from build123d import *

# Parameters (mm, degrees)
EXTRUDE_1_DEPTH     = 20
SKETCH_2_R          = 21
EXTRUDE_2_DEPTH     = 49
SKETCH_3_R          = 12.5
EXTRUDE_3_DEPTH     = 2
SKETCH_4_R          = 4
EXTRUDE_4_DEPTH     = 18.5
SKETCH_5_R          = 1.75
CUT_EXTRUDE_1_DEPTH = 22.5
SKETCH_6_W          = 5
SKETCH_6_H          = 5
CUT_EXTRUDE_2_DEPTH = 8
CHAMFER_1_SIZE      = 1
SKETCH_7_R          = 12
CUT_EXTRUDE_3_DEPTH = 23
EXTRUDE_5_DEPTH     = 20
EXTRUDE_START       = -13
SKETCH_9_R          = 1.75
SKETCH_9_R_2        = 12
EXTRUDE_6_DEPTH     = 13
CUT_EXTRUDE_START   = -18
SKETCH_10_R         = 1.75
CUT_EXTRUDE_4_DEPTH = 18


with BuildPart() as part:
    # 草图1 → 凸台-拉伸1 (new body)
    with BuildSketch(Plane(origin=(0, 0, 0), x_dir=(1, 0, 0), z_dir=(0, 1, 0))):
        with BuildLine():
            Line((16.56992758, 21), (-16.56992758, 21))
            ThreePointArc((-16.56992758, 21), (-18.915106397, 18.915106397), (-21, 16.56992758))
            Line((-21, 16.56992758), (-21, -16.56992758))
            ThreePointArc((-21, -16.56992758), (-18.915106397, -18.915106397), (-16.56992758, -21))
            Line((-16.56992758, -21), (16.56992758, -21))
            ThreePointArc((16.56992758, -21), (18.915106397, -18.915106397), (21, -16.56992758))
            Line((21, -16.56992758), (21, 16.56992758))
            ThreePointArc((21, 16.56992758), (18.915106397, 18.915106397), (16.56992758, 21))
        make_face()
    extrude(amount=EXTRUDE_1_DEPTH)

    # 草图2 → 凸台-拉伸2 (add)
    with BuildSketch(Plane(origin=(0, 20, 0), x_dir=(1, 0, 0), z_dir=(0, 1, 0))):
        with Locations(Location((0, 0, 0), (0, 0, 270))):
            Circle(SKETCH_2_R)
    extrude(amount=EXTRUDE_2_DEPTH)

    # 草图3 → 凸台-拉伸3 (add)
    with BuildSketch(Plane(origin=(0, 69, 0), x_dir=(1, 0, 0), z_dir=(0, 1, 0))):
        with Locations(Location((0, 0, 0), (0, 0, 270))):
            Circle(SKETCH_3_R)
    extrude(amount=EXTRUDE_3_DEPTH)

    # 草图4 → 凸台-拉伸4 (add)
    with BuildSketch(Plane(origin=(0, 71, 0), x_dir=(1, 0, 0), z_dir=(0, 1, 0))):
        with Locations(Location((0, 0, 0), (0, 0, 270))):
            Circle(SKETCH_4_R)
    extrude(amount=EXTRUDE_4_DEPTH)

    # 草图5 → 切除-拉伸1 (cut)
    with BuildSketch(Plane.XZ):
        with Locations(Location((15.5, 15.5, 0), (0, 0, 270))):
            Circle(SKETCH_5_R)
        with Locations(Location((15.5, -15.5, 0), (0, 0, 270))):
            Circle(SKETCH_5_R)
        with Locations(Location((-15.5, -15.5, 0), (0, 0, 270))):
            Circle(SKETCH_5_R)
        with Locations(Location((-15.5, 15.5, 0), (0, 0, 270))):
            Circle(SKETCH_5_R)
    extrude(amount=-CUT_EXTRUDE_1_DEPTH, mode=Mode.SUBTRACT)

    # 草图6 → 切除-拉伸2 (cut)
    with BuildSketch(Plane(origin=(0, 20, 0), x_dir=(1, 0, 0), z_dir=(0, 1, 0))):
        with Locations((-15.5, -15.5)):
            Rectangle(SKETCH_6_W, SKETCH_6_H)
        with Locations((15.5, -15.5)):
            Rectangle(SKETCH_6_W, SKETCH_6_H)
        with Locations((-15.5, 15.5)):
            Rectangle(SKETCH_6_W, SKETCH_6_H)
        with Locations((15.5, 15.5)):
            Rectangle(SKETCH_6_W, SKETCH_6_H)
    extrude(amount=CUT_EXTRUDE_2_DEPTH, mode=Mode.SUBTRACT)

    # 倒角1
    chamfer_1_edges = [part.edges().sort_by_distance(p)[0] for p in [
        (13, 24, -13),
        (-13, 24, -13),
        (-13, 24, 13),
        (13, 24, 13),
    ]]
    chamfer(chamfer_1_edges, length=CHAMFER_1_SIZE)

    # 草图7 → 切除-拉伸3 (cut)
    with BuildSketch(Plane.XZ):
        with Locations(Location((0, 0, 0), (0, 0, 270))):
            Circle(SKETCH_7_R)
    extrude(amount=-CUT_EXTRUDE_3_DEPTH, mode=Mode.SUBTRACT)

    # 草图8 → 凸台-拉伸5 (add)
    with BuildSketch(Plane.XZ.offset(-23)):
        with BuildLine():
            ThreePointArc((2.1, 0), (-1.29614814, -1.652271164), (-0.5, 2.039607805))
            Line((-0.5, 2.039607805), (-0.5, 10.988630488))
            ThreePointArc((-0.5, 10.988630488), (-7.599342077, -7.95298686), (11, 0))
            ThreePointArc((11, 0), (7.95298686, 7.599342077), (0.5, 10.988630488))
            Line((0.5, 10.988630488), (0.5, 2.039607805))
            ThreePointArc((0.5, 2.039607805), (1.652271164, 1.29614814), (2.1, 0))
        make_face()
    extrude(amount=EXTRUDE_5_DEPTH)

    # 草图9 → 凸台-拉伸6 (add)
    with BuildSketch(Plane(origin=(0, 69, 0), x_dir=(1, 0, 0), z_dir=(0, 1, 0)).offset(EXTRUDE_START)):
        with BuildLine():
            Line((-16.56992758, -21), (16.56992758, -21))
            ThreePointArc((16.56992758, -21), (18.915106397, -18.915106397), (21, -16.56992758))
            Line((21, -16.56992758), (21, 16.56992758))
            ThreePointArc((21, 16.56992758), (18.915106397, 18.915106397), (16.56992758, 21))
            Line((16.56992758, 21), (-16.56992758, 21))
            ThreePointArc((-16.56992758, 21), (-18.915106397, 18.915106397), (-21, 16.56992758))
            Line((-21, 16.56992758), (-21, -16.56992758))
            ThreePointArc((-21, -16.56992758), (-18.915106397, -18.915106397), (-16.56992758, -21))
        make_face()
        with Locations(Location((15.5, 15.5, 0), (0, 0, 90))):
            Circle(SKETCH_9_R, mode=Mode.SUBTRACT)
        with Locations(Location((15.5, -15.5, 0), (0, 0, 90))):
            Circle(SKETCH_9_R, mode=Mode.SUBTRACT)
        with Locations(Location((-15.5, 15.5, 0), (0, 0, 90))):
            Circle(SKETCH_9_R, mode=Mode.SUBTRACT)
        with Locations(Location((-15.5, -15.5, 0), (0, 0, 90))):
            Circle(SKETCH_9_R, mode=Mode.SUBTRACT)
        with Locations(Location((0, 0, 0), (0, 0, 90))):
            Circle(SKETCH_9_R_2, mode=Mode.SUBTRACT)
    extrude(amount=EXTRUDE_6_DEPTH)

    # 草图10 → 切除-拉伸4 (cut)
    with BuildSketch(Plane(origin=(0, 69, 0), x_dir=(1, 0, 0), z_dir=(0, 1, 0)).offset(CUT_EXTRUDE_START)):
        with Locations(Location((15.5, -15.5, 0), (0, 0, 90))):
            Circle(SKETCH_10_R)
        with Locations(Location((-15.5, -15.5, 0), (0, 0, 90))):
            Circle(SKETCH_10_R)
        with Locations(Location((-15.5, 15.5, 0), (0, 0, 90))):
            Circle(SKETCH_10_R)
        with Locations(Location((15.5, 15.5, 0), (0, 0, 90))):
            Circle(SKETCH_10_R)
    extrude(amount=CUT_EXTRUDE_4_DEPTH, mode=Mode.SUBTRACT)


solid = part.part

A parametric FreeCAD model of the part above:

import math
import FreeCAD as App
import Part
import Sketcher

V = App.Vector


def edges_at(feature, points):
    """Names of the edges that pass closest to the given points."""
    edges = feature.Shape.Edges
    near = lambda p: min(range(len(edges)), key=lambda i: edges[i].distToShape(Part.Vertex(*p))[0])
    return sorted({f"Edge{near(p) + 1}" for p in points})

doc = App.newDocument("Part")
body = doc.addObject("PartDesign::Body", "Body")

# Sketch on XZ plane
sketch1 = body.newObject("Sketcher::SketchObject", "Sketch")
sketch1.AttachmentSupport = (doc.getObject("XZ_Plane"), [""])
sketch1.MapMode = "FlatFace"
sketch1.addGeometry([
    Part.LineSegment(V(16.569928, -21, 0), V(-16.569928, -21, 0)),  # 0
    Part.ArcOfCircle(Part.Circle(V(0, 0, 0), V(0, 0, 1), 26.75), math.radians(-141.725), math.radians(-128.275)),  # 1
    Part.LineSegment(V(-21, -16.569928, 0), V(-21, 16.569928, 0)),  # 2
    Part.ArcOfCircle(Part.Circle(V(0, 0, 0), V(0, 0, 1), 26.75), math.radians(128.275), math.radians(141.725)),  # 3
    Part.LineSegment(V(-16.569928, 21, 0), V(16.569928, 21, 0)),  # 4
    Part.ArcOfCircle(Part.Circle(V(0, 0, 0), V(0, 0, 1), 26.75), math.radians(38.275), math.radians(51.725)),  # 5
    Part.LineSegment(V(21, 16.569928, 0), V(21, -16.569928, 0)),  # 6
    Part.ArcOfCircle(Part.Circle(V(0, 0, 0), V(0, 0, 1), 26.75), math.radians(-51.725), math.radians(-38.275)),  # 7
], False)
sketch1.addConstraint([
    Sketcher.Constraint("Coincident", 0, 2, 1, 2),
    Sketcher.Constraint("Coincident", 1, 1, 2, 1),
    Sketcher.Constraint("Coincident", 2, 2, 3, 2),
    Sketcher.Constraint("Coincident", 3, 1, 4, 1),
    Sketcher.Constraint("Coincident", 4, 2, 5, 2),
    Sketcher.Constraint("Coincident", 5, 1, 6, 1),
    Sketcher.Constraint("Coincident", 6, 2, 7, 2),
    Sketcher.Constraint("Coincident", 7, 1, 0, 1),
    Sketcher.Constraint("Horizontal", 0),
    Sketcher.Constraint("Vertical", 2),
    Sketcher.Constraint("Horizontal", 4),
    Sketcher.Constraint("Vertical", 6),
    Sketcher.Constraint("Coincident", 1, 3, -1, 1),
    Sketcher.Constraint("Coincident", 3, 3, -1, 1),
    Sketcher.Constraint("Coincident", 5, 3, -1, 1),
    Sketcher.Constraint("Coincident", 7, 3, -1, 1),
    Sketcher.Constraint("Equal", 1, 3),
    Sketcher.Constraint("Equal", 3, 5),
    Sketcher.Constraint("Equal", 5, 7),
    Sketcher.Constraint("Horizontal", 2, 2, 5, 1),
    Sketcher.Constraint("Vertical", 0, 2, 3, 1),
    Sketcher.Constraint("Equal", 4, 2),
    Sketcher.Constraint("Radius", 1, 26.75),
    Sketcher.Constraint("DistanceY", 0, 2, -1, 1, 21.0),
])
pad1 = body.newObject("PartDesign::Pad", "Pad")
pad1.Profile = sketch1
pad1.Length = 20
pad1.Reversed = True

# Sketch on XZ plane
sketch2 = body.newObject("Sketcher::SketchObject", "Sketch001")
sketch2.AttachmentSupport = (doc.getObject("XZ_Plane"), [""])
sketch2.MapMode = "FlatFace"
sketch2.AttachmentOffset = App.Placement(V(0, 0, -20), App.Rotation())
sketch2.addGeometry(Part.Circle(V(0, 0, 0), V(0, 0, 1), 21), False)
sketch2.addConstraint([
    Sketcher.Constraint("Coincident", 0, 3, -1, 1),
    Sketcher.Constraint("Diameter", 0, 42.0),
])
pad2 = body.newObject("PartDesign::Pad", "Pad001")
pad2.Profile = sketch2
pad2.Length = 49
pad2.Reversed = True

# Sketch on XZ plane
sketch3 = body.newObject("Sketcher::SketchObject", "Sketch002")
sketch3.AttachmentSupport = (doc.getObject("XZ_Plane"), [""])
sketch3.MapMode = "FlatFace"
sketch3.AttachmentOffset = App.Placement(V(0, 0, -69), App.Rotation())
sketch3.addGeometry(Part.Circle(V(0, 0, 0), V(0, 0, 1), 12.5), False)
sketch3.addConstraint([
    Sketcher.Constraint("Coincident", 0, 3, -1, 1),
    Sketcher.Constraint("Diameter", 0, 25.0),
])
pad3 = body.newObject("PartDesign::Pad", "Pad002")
pad3.Profile = sketch3
pad3.Length = 2
pad3.Reversed = True

# Sketch on XZ plane
sketch4 = body.newObject("Sketcher::SketchObject", "Sketch003")
sketch4.AttachmentSupport = (doc.getObject("XZ_Plane"), [""])
sketch4.MapMode = "FlatFace"
sketch4.AttachmentOffset = App.Placement(V(0, 0, -71), App.Rotation())
sketch4.addGeometry(Part.Circle(V(0, 0, 0), V(0, 0, 1), 4), False)
sketch4.addConstraint([
    Sketcher.Constraint("Coincident", 0, 3, -1, 1),
    Sketcher.Constraint("Diameter", 0, 8.0),
])
pad4 = body.newObject("PartDesign::Pad", "Pad003")
pad4.Profile = sketch4
pad4.Length = 18.5
pad4.Reversed = True

# Sketch on XZ plane
sketch5 = body.newObject("Sketcher::SketchObject", "Sketch004")
sketch5.AttachmentSupport = (doc.getObject("XZ_Plane"), [""])
sketch5.MapMode = "FlatFace"
sketch5.addGeometry([
    Part.Circle(V(15.5, 15.5, 0), V(0, 0, 1), 1.75),
    Part.Circle(V(15.5, -15.5, 0), V(0, 0, 1), 1.75),
    Part.Circle(V(-15.5, -15.5, 0), V(0, 0, 1), 1.75),
    Part.Circle(V(-15.5, 15.5, 0), V(0, 0, 1), 1.75),
], False)
sketch5.addConstraint([
    Sketcher.Constraint("Equal", 0, 1),
    Sketcher.Constraint("Equal", 1, 2),
    Sketcher.Constraint("Equal", 2, 3),
    Sketcher.Constraint("Symmetric", 0, 3, 2, 3, -1, 1),
    Sketcher.Constraint("Symmetric", 1, 3, 3, 3, -1, 1),
    Sketcher.Constraint("Symmetric", 1, 3, 2, 3, -2),
    Sketcher.Constraint("Diameter", 0, 3.5),
    Sketcher.Constraint("DistanceY", 1, 3, 0, 3, 31.0),
    Sketcher.Constraint("DistanceX", 2, 3, 1, 3, 31.0),
])
pocket1 = body.newObject("PartDesign::Pocket", "Pocket")
pocket1.Profile = sketch5
pocket1.Length = 22.5

# Sketch on XZ plane
sketch6 = body.newObject("Sketcher::SketchObject", "Sketch005")
sketch6.AttachmentSupport = (doc.getObject("XZ_Plane"), [""])
sketch6.MapMode = "FlatFace"
sketch6.AttachmentOffset = App.Placement(V(0, 0, -20), App.Rotation())
sketch6.addGeometry([
    Part.LineSegment(V(-18, 13, 0), V(-18, 18, 0)),  # 0
    Part.LineSegment(V(-18, 18, 0), V(-13, 18, 0)),  # 1
    Part.LineSegment(V(-13, 18, 0), V(-13, 13, 0)),  # 2
    Part.LineSegment(V(-13, 13, 0), V(-18, 13, 0)),  # 3
    Part.LineSegment(V(13, 13, 0), V(13, 18, 0)),  # 4
    Part.LineSegment(V(13, 18, 0), V(18, 18, 0)),  # 5
    Part.LineSegment(V(18, 18, 0), V(18, 13, 0)),  # 6
    Part.LineSegment(V(18, 13, 0), V(13, 13, 0)),  # 7
    Part.LineSegment(V(-18, -18, 0), V(-18, -13, 0)),  # 8
    Part.LineSegment(V(-18, -13, 0), V(-13, -13, 0)),  # 9
    Part.LineSegment(V(-13, -13, 0), V(-13, -18, 0)),  # 10
    Part.LineSegment(V(-13, -18, 0), V(-18, -18, 0)),  # 11
    Part.LineSegment(V(13, -18, 0), V(13, -13, 0)),  # 12
    Part.LineSegment(V(13, -13, 0), V(18, -13, 0)),  # 13
    Part.LineSegment(V(18, -13, 0), V(18, -18, 0)),  # 14
    Part.LineSegment(V(18, -18, 0), V(13, -18, 0)),  # 15
], False)
sketch6.addConstraint([
    Sketcher.Constraint("Coincident", 0, 2, 1, 1),
    Sketcher.Constraint("Coincident", 1, 2, 2, 1),
    Sketcher.Constraint("Coincident", 2, 2, 3, 1),
    Sketcher.Constraint("Coincident", 3, 2, 0, 1),
    Sketcher.Constraint("Coincident", 4, 2, 5, 1),
    Sketcher.Constraint("Coincident", 5, 2, 6, 1),
    Sketcher.Constraint("Coincident", 6, 2, 7, 1),
    Sketcher.Constraint("Coincident", 7, 2, 4, 1),
    Sketcher.Constraint("Coincident", 8, 2, 9, 1),
    Sketcher.Constraint("Coincident", 9, 2, 10, 1),
    Sketcher.Constraint("Coincident", 10, 2, 11, 1),
    Sketcher.Constraint("Coincident", 11, 2, 8, 1),
    Sketcher.Constraint("Coincident", 12, 2, 13, 1),
    Sketcher.Constraint("Coincident", 13, 2, 14, 1),
    Sketcher.Constraint("Coincident", 14, 2, 15, 1),
    Sketcher.Constraint("Coincident", 15, 2, 12, 1),
    Sketcher.Constraint("Vertical", 0),
    Sketcher.Constraint("Horizontal", 1),
    Sketcher.Constraint("Vertical", 2),
    Sketcher.Constraint("Horizontal", 3),
    Sketcher.Constraint("Vertical", 4),
    Sketcher.Constraint("Horizontal", 5),
    Sketcher.Constraint("Vertical", 6),
    Sketcher.Constraint("Horizontal", 7),
    Sketcher.Constraint("Vertical", 8),
    Sketcher.Constraint("Horizontal", 9),
    Sketcher.Constraint("Vertical", 10),
    Sketcher.Constraint("Horizontal", 11),
    Sketcher.Constraint("Vertical", 12),
    Sketcher.Constraint("Horizontal", 13),
    Sketcher.Constraint("Vertical", 14),
    Sketcher.Constraint("Horizontal", 15),
    Sketcher.Constraint("Symmetric", 6, 2, 8, 2, -1, 1),
    Sketcher.Constraint("Symmetric", 4, 2, 10, 2, -1, 1),
    Sketcher.Constraint("Symmetric", 2, 2, 12, 2, -1, 1),
    Sketcher.Constraint("Symmetric", 0, 2, 14, 2, -1, 1),
    Sketcher.Constraint("Symmetric", 1, 2, 4, 2, -2),
    Sketcher.Constraint("Symmetric", 3, 2, 6, 2, -2),
    Sketcher.Constraint("Equal", 15, 0),
    Sketcher.Constraint("DistanceX", 1, 1, 1, 2, 5.0),
    Sketcher.Constraint("DistanceX", 0, 2, -1, 1, 18.0),
    Sketcher.Constraint("DistanceY", -1, 1, 0, 2, 18.0),
])
pocket2 = body.newObject("PartDesign::Pocket", "Pocket001")
pocket2.Profile = sketch6
pocket2.Length = 8
doc.recompute()

chamfer = body.newObject("PartDesign::Chamfer", "Chamfer")
chamfer.Base = (pocket2, edges_at(pocket2, [
    (13, 24, -13),
    (-13, 24, -13),
    (-13, 24, 13),
    (13, 24, 13),
]))
chamfer.Size = 1

# Sketch on XZ plane
sketch7 = body.newObject("Sketcher::SketchObject", "Sketch006")
sketch7.AttachmentSupport = (doc.getObject("XZ_Plane"), [""])
sketch7.MapMode = "FlatFace"
sketch7.addGeometry(Part.Circle(V(0, 0, 0), V(0, 0, 1), 12), False)
sketch7.addConstraint([
    Sketcher.Constraint("Coincident", 0, 3, -1, 1),
    Sketcher.Constraint("Diameter", 0, 24.0),
])
pocket3 = body.newObject("PartDesign::Pocket", "Pocket002")
pocket3.Profile = sketch7
pocket3.Length = 23

# Sketch on XZ plane
sketch8 = body.newObject("Sketcher::SketchObject", "Sketch007")
sketch8.AttachmentSupport = (doc.getObject("XZ_Plane"), [""])
sketch8.MapMode = "FlatFace"
sketch8.AttachmentOffset = App.Placement(V(0, 0, -23), App.Rotation())
sketch8.addGeometry([
    Part.ArcOfCircle(Part.Circle(V(0, 0, 0), V(0, 0, 1), 2.1), math.radians(103.774147), math.radians(360)),  # 0
    Part.LineSegment(V(-0.5, 2.039608, 0), V(-0.5, 10.98863, 0)),  # 1
    Part.ArcOfCircle(Part.Circle(V(0, 0, 0), V(0, 0, 1), 11), math.radians(92.605251), math.radians(360)),  # 2
    Part.ArcOfCircle(Part.Circle(V(0, 0, 0), V(0, 0, 1), 11), math.radians(0), math.radians(87.394749)),  # 3
    Part.LineSegment(V(0.5, 10.98863, 0), V(0.5, 2.039608, 0)),  # 4
    Part.ArcOfCircle(Part.Circle(V(0, 0, 0), V(0, 0, 1), 2.1), math.radians(0), math.radians(76.225853)),  # 5
], False)
sketch8.addConstraint([
    Sketcher.Constraint("Coincident", 0, 1, 1, 1),
    Sketcher.Constraint("Coincident", 1, 2, 2, 1),
    Sketcher.Constraint("Tangent", 2, 2, 3, 1),
    Sketcher.Constraint("Coincident", 3, 2, 4, 1),
    Sketcher.Constraint("Coincident", 4, 2, 5, 2),
    Sketcher.Constraint("Tangent", 5, 1, 0, 2),
    Sketcher.Constraint("Vertical", 1),
    Sketcher.Constraint("Vertical", 4),
    Sketcher.Constraint("Coincident", 0, 3, -1, 1),
    Sketcher.Constraint("Coincident", 2, 3, -1, 1),
    Sketcher.Constraint("Equal", 2, 3),
    Sketcher.Constraint("Equal", 0, 5),
    Sketcher.Constraint("PointOnObject", 2, 2, -1),
    Sketcher.Constraint("PointOnObject", 5, 1, -1),
    Sketcher.Constraint("Horizontal", 1, 2, 3, 2),
    Sketcher.Constraint("Radius", 2, 11.0),
    Sketcher.Constraint("Radius", 0, 2.1),
    Sketcher.Constraint("DistanceX", 1, 2, 3, 2, 1.0),
])
pad5 = body.newObject("PartDesign::Pad", "Pad004")
pad5.Profile = sketch8
pad5.Length = 20

# Sketch on XZ plane
sketch9 = body.newObject("Sketcher::SketchObject", "Sketch008")
sketch9.AttachmentSupport = (doc.getObject("XZ_Plane"), [""])
sketch9.MapMode = "FlatFace"
sketch9.AttachmentOffset = App.Placement(V(0, 0, -56), App.Rotation())
sketch9.addGeometry([
    Part.LineSegment(V(-16.569928, 21, 0), V(16.569928, 21, 0)),  # 0
    Part.ArcOfCircle(Part.Circle(V(0, 0, 0), V(0, 0, 1), 26.75), math.radians(38.275), math.radians(51.725)),  # 1
    Part.LineSegment(V(21, 16.569928, 0), V(21, -16.569928, 0)),  # 2
    Part.ArcOfCircle(Part.Circle(V(0, 0, 0), V(0, 0, 1), 26.75), math.radians(-51.725), math.radians(-38.275)),  # 3
    Part.LineSegment(V(16.569928, -21, 0), V(-16.569928, -21, 0)),  # 4
    Part.ArcOfCircle(Part.Circle(V(0, 0, 0), V(0, 0, 1), 26.75), math.radians(-141.725), math.radians(-128.275)),  # 5
    Part.LineSegment(V(-21, -16.569928, 0), V(-21, 16.569928, 0)),  # 6
    Part.ArcOfCircle(Part.Circle(V(0, 0, 0), V(0, 0, 1), 26.75), math.radians(128.275), math.radians(141.725)),  # 7
    Part.Circle(V(-15.5, 15.5, 0), V(0, 0, 1), 1.75),  # 8
    Part.Circle(V(15.5, 15.5, 0), V(0, 0, 1), 1.75),  # 9
    Part.Circle(V(-15.5, -15.5, 0), V(0, 0, 1), 1.75),  # 10
    Part.Circle(V(0, 0, 0), V(0, 0, 1), 12),  # 11
    Part.Circle(V(15.5, -15.5, 0), V(0, 0, 1), 1.75),  # 12
], False)
sketch9.addConstraint([
    Sketcher.Constraint("Coincident", 0, 2, 1, 2),
    Sketcher.Constraint("Coincident", 1, 1, 2, 1),
    Sketcher.Constraint("Coincident", 2, 2, 3, 2),
    Sketcher.Constraint("Coincident", 3, 1, 4, 1),
    Sketcher.Constraint("Coincident", 4, 2, 5, 2),
    Sketcher.Constraint("Coincident", 5, 1, 6, 1),
    Sketcher.Constraint("Coincident", 6, 2, 7, 2),
    Sketcher.Constraint("Coincident", 7, 1, 0, 1),
    Sketcher.Constraint("Horizontal", 0),
    Sketcher.Constraint("Vertical", 2),
    Sketcher.Constraint("Horizontal", 4),
    Sketcher.Constraint("Vertical", 6),
    Sketcher.Constraint("Coincident", 1, 3, -1, 1),
    Sketcher.Constraint("Coincident", 3, 3, -1, 1),
    Sketcher.Constraint("Coincident", 5, 3, -1, 1),
    Sketcher.Constraint("Coincident", 7, 3, -1, 1),
    Sketcher.Constraint("Coincident", 11, 3, -1, 1),
    Sketcher.Constraint("Equal", 1, 3),
    Sketcher.Constraint("Equal", 3, 5),
    Sketcher.Constraint("Equal", 5, 7),
    Sketcher.Constraint("Equal", 8, 9),
    Sketcher.Constraint("Equal", 9, 10),
    Sketcher.Constraint("Equal", 10, 12),
    Sketcher.Constraint("Symmetric", 9, 3, 10, 3, -1, 1),
    Sketcher.Constraint("Symmetric", 8, 3, 12, 3, -1, 1),
    Sketcher.Constraint("Symmetric", 8, 3, 9, 3, -2),
    Sketcher.Constraint("Horizontal", 2, 2, 5, 1),
    Sketcher.Constraint("Vertical", 0, 2, 3, 1),
    Sketcher.Constraint("Equal", 4, 2),
    Sketcher.Constraint("Diameter", 11, 24.0),
    Sketcher.Constraint("Diameter", 8, 3.5),
    Sketcher.Constraint("Radius", 1, 26.75),
    Sketcher.Constraint("DistanceY", -1, 1, 0, 2, 21.0),
    Sketcher.Constraint("DistanceX", 8, 3, 9, 3, 31.0),
    Sketcher.Constraint("DistanceY", 10, 3, 8, 3, 31.0),
])
pad6 = body.newObject("PartDesign::Pad", "Pad005")
pad6.Profile = sketch9
pad6.Length = 13
pad6.Reversed = True

# Sketch on XZ plane
sketch10 = body.newObject("Sketcher::SketchObject", "Sketch009")
sketch10.AttachmentSupport = (doc.getObject("XZ_Plane"), [""])
sketch10.MapMode = "FlatFace"
sketch10.AttachmentOffset = App.Placement(V(0, 0, -51), App.Rotation())
sketch10.addGeometry([
    Part.Circle(V(15.5, 15.5, 0), V(0, 0, 1), 1.75),
    Part.Circle(V(-15.5, 15.5, 0), V(0, 0, 1), 1.75),
    Part.Circle(V(-15.5, -15.5, 0), V(0, 0, 1), 1.75),
    Part.Circle(V(15.5, -15.5, 0), V(0, 0, 1), 1.75),
], False)
sketch10.addConstraint([
    Sketcher.Constraint("Equal", 0, 1),
    Sketcher.Constraint("Equal", 1, 2),
    Sketcher.Constraint("Equal", 2, 3),
    Sketcher.Constraint("Symmetric", 0, 3, 2, 3, -1, 1),
    Sketcher.Constraint("Symmetric", 1, 3, 3, 3, -1, 1),
    Sketcher.Constraint("Symmetric", 0, 3, 1, 3, -2),
    Sketcher.Constraint("Diameter", 0, 3.5),
    Sketcher.Constraint("DistanceX", 1, 3, 0, 3, 31.0),
    Sketcher.Constraint("DistanceY", 2, 3, 1, 3, 31.0),
])
pocket4 = body.newObject("PartDesign::Pocket", "Pocket003")
pocket4.Profile = sketch10
pocket4.Length = 18

doc.recompute()
